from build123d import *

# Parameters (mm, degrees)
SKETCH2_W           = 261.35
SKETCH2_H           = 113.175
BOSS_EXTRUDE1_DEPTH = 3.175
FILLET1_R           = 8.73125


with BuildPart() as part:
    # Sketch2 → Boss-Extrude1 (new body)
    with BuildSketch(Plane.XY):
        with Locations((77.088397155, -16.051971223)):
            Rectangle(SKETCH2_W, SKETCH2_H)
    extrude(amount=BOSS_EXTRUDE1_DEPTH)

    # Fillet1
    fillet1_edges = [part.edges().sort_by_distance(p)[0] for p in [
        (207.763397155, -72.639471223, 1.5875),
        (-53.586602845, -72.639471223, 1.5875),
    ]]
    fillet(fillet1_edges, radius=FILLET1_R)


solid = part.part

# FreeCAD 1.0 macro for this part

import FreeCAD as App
import Part
import Sketcher
Q = App.Units.Quantity


def edges_at(feature, points):
    """Names of the edges that pass closest to the given points."""
    edges = feature.Shape.Edges
    near = lambda p: min(range(len(edges)), key=lambda i: edges[i].distToShape(Part.Vertex(*p))[0])
    return sorted({f"Edge{near(p) + 1}" for p in points})


def add_polygon(sketch, points):
    """Adds a closed chain of lines whose ends are joined by coincident constraints."""
    first, n = sketch.GeometryCount, len(points)
    for a, b in zip(points, points[1:] + points[:1]):
        sketch.addGeometry(Part.LineSegment(App.Vector(*a, 0), App.Vector(*b, 0)), False)
    for i in range(n):
        sketch.addConstraint(Sketcher.Constraint("Coincident", first + i, 2, first + (i + 1) % n, 1))

doc = App.newDocument("Part")
body = doc.addObject("PartDesign::Body", "Body")

sketch1 = doc.addObject("Sketcher::SketchObject", "Sketch")
body.addObject(sketch1)
sketch1.AttachmentSupport = (doc.XY_Plane, [""])
sketch1.MapMode = "FlatFace"
add_polygon(sketch1, [(-53.586603, 40.535529), (-53.586603, -72.639471), (207.763397, -72.639471), (207.763397, 40.535529)])
sketch1.addConstraint(Sketcher.Constraint("Vertical", 0))
sketch1.addConstraint(Sketcher.Constraint("Horizontal", 1))
sketch1.addConstraint(Sketcher.Constraint("Vertical", 2))
sketch1.addConstraint(Sketcher.Constraint("Horizontal", 3))
sketch1.addConstraint(Sketcher.Constraint("DistanceX", 1, 1, 1, 2, 261.35))
sketch1.addConstraint(Sketcher.Constraint("DistanceY", 0, 2, 0, 1, 113.175))
sketch1.addConstraint(Sketcher.Constraint("DistanceY", 0, 2, -1, 1, 72.639471))
sketch1.addConstraint(Sketcher.Constraint("DistanceX", 0, 2, -1, 1, 53.586603))
pad1 = doc.addObject("PartDesign::Pad", "Pad")
body.addObject(pad1)
pad1.Profile = sketch1
pad1.Length = Q("0.125 in")
doc.recompute()

fillet = doc.addObject("PartDesign::Fillet", "Fillet")
body.addObject(fillet)
fillet.Base = (pad1, edges_at(pad1, [(207.763, -72.639, 1.587), (-53.587, -72.639, 1.587)]))
fillet.Radius = Q("0.34375 in")

doc.recompute()
